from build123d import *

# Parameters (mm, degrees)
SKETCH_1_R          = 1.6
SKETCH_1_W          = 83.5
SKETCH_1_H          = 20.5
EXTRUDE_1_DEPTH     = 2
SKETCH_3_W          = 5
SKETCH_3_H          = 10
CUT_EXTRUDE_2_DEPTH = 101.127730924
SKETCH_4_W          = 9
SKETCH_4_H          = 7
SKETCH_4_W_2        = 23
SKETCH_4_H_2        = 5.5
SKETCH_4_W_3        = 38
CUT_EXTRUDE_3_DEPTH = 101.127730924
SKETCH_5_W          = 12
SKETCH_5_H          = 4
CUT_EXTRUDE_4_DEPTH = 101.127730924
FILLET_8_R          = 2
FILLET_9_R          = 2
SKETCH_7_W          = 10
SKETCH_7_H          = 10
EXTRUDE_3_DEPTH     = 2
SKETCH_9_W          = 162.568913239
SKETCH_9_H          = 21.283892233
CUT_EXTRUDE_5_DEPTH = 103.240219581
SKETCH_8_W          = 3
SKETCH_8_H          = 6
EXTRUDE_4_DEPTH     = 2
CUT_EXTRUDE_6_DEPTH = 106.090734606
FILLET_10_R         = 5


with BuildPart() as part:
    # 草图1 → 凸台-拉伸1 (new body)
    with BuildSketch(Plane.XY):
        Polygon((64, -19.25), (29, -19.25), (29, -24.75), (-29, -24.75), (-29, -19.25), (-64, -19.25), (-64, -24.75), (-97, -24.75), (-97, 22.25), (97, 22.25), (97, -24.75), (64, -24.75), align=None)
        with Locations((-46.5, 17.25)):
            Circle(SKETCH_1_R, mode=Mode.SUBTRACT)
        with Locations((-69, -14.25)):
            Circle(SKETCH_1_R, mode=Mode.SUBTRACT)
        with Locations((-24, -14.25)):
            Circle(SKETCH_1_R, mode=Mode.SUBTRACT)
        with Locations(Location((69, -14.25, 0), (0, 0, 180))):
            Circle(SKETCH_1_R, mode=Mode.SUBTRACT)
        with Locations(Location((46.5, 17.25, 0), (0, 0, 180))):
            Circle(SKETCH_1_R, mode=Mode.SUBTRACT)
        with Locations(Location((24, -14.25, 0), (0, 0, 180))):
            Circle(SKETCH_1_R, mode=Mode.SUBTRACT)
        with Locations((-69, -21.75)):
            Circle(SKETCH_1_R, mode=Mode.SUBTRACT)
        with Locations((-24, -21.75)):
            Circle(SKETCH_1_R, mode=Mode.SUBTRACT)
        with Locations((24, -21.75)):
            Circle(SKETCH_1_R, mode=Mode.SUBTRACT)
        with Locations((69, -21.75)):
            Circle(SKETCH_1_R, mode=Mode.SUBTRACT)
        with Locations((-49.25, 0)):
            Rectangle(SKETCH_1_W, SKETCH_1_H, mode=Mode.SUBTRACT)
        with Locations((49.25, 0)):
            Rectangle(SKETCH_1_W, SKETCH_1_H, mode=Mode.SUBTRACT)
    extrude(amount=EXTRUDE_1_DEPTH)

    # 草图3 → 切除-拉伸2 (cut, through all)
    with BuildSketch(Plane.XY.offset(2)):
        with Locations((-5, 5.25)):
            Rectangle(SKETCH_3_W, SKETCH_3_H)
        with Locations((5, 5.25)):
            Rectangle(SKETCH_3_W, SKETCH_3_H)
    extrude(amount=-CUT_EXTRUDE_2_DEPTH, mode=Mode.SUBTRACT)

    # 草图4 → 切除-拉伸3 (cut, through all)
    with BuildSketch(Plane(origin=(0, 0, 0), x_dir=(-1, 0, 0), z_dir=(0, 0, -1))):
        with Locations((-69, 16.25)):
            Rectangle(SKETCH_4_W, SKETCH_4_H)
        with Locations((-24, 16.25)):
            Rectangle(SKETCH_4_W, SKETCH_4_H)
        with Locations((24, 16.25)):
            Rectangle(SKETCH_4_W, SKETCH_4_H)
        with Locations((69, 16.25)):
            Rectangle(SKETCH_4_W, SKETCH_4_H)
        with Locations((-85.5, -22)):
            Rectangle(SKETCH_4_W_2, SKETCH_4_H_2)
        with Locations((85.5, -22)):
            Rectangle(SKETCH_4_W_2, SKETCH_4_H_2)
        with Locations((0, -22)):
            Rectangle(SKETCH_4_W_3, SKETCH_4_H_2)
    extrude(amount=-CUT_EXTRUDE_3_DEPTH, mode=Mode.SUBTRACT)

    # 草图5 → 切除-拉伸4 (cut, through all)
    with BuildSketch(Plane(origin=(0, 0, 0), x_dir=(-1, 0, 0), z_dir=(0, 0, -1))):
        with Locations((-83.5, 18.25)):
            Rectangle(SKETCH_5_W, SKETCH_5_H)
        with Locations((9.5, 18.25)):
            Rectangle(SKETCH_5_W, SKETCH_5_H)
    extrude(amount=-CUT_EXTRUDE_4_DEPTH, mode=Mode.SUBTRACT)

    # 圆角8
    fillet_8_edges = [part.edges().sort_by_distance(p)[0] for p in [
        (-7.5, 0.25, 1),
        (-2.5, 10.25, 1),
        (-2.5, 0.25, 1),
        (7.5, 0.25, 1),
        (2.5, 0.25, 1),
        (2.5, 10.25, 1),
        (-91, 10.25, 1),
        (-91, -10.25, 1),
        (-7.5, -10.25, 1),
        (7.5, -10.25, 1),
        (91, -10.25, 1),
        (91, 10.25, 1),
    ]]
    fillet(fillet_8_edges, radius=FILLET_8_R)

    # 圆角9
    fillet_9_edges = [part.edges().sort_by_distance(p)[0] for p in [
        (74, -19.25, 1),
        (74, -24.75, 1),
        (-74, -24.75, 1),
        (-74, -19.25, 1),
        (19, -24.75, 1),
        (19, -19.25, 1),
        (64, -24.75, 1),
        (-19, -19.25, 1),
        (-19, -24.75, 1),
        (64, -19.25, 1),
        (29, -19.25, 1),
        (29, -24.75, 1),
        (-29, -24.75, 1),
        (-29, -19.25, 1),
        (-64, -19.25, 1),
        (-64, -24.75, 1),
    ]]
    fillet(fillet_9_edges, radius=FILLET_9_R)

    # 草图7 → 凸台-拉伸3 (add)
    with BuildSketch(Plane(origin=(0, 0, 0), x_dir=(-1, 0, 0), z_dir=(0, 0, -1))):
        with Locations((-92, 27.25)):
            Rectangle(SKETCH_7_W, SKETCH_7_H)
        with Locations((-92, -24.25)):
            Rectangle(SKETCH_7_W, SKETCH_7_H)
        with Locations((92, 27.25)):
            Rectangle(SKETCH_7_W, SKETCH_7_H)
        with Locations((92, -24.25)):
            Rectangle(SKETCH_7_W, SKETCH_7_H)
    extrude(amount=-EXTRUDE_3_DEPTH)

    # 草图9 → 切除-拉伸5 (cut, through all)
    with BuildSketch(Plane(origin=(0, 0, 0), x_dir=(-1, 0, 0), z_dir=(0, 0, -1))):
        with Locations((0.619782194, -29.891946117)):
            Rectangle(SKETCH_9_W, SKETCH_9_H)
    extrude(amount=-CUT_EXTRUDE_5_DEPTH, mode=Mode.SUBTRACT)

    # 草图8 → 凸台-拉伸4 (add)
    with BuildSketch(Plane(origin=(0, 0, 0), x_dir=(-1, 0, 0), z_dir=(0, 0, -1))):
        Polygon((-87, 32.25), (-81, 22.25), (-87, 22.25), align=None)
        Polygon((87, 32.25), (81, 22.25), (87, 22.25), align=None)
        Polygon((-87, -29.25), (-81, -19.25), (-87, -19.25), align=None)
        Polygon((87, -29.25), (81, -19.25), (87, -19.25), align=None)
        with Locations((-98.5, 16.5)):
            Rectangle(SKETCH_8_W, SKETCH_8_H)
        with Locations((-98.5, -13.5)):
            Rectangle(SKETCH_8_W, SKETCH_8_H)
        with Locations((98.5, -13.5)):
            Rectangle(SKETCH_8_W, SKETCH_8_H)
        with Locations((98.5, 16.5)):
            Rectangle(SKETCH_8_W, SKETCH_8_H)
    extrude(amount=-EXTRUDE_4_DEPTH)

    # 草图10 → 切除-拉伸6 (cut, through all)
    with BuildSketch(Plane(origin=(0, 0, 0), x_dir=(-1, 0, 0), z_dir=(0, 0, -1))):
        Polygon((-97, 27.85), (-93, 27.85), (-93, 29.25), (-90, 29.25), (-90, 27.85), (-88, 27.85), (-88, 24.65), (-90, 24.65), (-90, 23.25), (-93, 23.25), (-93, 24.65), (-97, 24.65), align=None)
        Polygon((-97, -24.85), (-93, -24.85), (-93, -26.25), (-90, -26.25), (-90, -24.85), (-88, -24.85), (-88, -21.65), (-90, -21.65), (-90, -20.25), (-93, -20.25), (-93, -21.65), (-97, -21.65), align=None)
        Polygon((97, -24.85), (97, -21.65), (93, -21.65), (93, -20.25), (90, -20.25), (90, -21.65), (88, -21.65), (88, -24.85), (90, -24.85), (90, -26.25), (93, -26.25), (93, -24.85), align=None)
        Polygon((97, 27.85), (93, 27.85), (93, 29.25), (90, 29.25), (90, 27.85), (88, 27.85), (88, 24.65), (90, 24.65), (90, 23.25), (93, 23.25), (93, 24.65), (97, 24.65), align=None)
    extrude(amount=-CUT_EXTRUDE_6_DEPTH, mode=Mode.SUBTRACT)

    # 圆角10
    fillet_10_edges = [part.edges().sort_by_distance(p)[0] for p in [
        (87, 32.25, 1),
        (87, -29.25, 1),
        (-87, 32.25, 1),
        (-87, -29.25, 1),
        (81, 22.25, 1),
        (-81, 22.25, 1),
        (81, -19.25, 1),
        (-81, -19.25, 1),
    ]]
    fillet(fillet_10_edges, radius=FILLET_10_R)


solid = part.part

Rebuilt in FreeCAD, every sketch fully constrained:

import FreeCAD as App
import Part
import Sketcher


def edges_at(feature, points):
    """Names of the edges that pass closest to the given points."""
    edges = feature.Shape.Edges
    near = lambda p: min(range(len(edges)), key=lambda i: edges[i].distToShape(Part.Vertex(*p))[0])
    return sorted({f"Edge{near(p) + 1}" for p in points})

doc = App.newDocument("Part")
body = doc.addObject("PartDesign::Body", "Body")

sketch1 = doc.addObject("Sketcher::SketchObject", "Sketch")
body.addObject(sketch1)
sketch1.AttachmentSupport = (doc.XY_Plane, [""])
sketch1.MapMode = "FlatFace"
sketch1.addGeometry([
    Part.LineSegment(App.Vector(29, -19.2, 0), App.Vector(64, -19.2, 0)),
    Part.LineSegment(App.Vector(64, -19.2, 0), App.Vector(64, -24.8, 0)),
    Part.LineSegment(App.Vector(64, -24.8, 0), App.Vector(97, -24.8, 0)),
    Part.LineSegment(App.Vector(97, -24.8, 0), App.Vector(97, 22.2, 0)),
    Part.LineSegment(App.Vector(97, 22.2, 0), App.Vector(-97, 22.2, 0)),
    Part.LineSegment(App.Vector(-97, 22.2, 0), App.Vector(-97, -24.8, 0)),
    Part.LineSegment(App.Vector(-97, -24.8, 0), App.Vector(-64, -24.8, 0)),
    Part.LineSegment(App.Vector(-64, -24.8, 0), App.Vector(-64, -19.2, 0)),
    Part.LineSegment(App.Vector(-64, -19.2, 0), App.Vector(-29, -19.2, 0)),
    Part.LineSegment(App.Vector(-29, -19.2, 0), App.Vector(-29, -24.8, 0)),
    Part.LineSegment(App.Vector(-29, -24.8, 0), App.Vector(29, -24.8, 0)),
    Part.LineSegment(App.Vector(29, -24.8, 0), App.Vector(29, -19.2, 0)),
    Part.Circle(App.Vector(69, -21.8, 0), App.Vector(0, 0, 1), 1.6),
    Part.Circle(App.Vector(69, -14.2, 0), App.Vector(0, 0, 1), 1.6),
    Part.Circle(App.Vector(24, -21.8, 0), App.Vector(0, 0, 1), 1.6),
    Part.Circle(App.Vector(24, -14.2, 0), App.Vector(0, 0, 1), 1.6),
    Part.Circle(App.Vector(-24, -21.8, 0), App.Vector(0, 0, 1), 1.6),
    Part.Circle(App.Vector(-24, -14.2, 0), App.Vector(0, 0, 1), 1.6),
    Part.Circle(App.Vector(-69, -21.8, 0), App.Vector(0, 0, 1), 1.6),
    Part.Circle(App.Vector(-69, -14.2, 0), App.Vector(0, 0, 1), 1.6),
    Part.LineSegment(App.Vector(7.5, -10.2, 0), App.Vector(7.5, 10.2, 0)),
    Part.LineSegment(App.Vector(7.5, 10.2, 0), App.Vector(91, 10.2, 0)),
    Part.LineSegment(App.Vector(91, 10.2, 0), App.Vector(91, -10.2, 0)),
    Part.LineSegment(App.Vector(91, -10.2, 0), App.Vector(7.5, -10.2, 0)),
    Part.Circle(App.Vector(46.5, 17.2, 0), App.Vector(0, 0, 1), 1.6),
    Part.LineSegment(App.Vector(-91, -10.2, 0), App.Vector(-91, 10.2, 0)),
    Part.LineSegment(App.Vector(-91, 10.2, 0), App.Vector(-7.5, 10.2, 0)),
    Part.LineSegment(App.Vector(-7.5, 10.2, 0), App.Vector(-7.5, -10.2, 0)),
    Part.LineSegment(App.Vector(-7.5, -10.2, 0), App.Vector(-91, -10.2, 0)),
    Part.Circle(App.Vector(-46.5, 17.2, 0), App.Vector(0, 0, 1), 1.6),
], False)
sketch1.addConstraint([
    Sketcher.Constraint("Coincident", 0, 2, 1, 1),
    Sketcher.Constraint("Coincident", 1, 2, 2, 1),
    Sketcher.Constraint("Coincident", 2, 2, 3, 1),
    Sketcher.Constraint("Coincident", 3, 2, 4, 1),
    Sketcher.Constraint("Coincident", 4, 2, 5, 1),
    Sketcher.Constraint("Coincident", 5, 2, 6, 1),
    Sketcher.Constraint("Coincident", 6, 2, 7, 1),
    Sketcher.Constraint("Coincident", 7, 2, 8, 1),
    Sketcher.Constraint("Coincident", 8, 2, 9, 1),
    Sketcher.Constraint("Coincident", 9, 2, 10, 1),
    Sketcher.Constraint("Coincident", 10, 2, 11, 1),
    Sketcher.Constraint("Coincident", 11, 2, 0, 1),
    Sketcher.Constraint("Coincident", 20, 2, 21, 1),
    Sketcher.Constraint("Coincident", 21, 2, 22, 1),
    Sketcher.Constraint("Coincident", 22, 2, 23, 1),
    Sketcher.Constraint("Coincident", 23, 2, 20, 1),
    Sketcher.Constraint("Coincident", 25, 2, 26, 1),
    Sketcher.Constraint("Coincident", 26, 2, 27, 1),
    Sketcher.Constraint("Coincident", 27, 2, 28, 1),
    Sketcher.Constraint("Coincident", 28, 2, 25, 1),
    Sketcher.Constraint("Horizontal", 0),
    Sketcher.Constraint("Vertical", 1),
    Sketcher.Constraint("Horizontal", 2),
    Sketcher.Constraint("Vertical", 3),
    Sketcher.Constraint("Horizontal", 4),
    Sketcher.Constraint("Vertical", 5),
    Sketcher.Constraint("Horizontal", 6),
    Sketcher.Constraint("Vertical", 7),
    Sketcher.Constraint("Horizontal", 8),
    Sketcher.Constraint("Vertical", 9),
    Sketcher.Constraint("Horizontal", 10),
    Sketcher.Constraint("Vertical", 11),
    Sketcher.Constraint("Vertical", 20),
    Sketcher.Constraint("Horizontal", 21),
    Sketcher.Constraint("Vertical", 22),
    Sketcher.Constraint("Horizontal", 23),
    Sketcher.Constraint("Vertical", 25),
    Sketcher.Constraint("Horizontal", 26),
    Sketcher.Constraint("Vertical", 27),
    Sketcher.Constraint("Horizontal", 28),
    Sketcher.Constraint("Equal", 12, 13),
    Sketcher.Constraint("Equal", 13, 14),
    Sketcher.Constraint("Equal", 14, 15),
    Sketcher.Constraint("Equal", 15, 16),
    Sketcher.Constraint("Equal", 16, 17),
    Sketcher.Constraint("Equal", 17, 18),
    Sketcher.Constraint("Equal", 18, 19),
    Sketcher.Constraint("Equal", 19, 24),
    Sketcher.Constraint("Equal", 24, 29),
    Sketcher.Constraint("Symmetric", 22, 2, 25, 2, -1, 1),
    Sketcher.Constraint("Symmetric", 20, 2, 27, 2, -1, 1),
    Sketcher.Constraint("Symmetric", 14, 3, 16, 3, -2),
    Sketcher.Constraint("Symmetric", 15, 3, 17, 3, -2),
    Sketcher.Constraint("Symmetric", 12, 3, 18, 3, -2),
    Sketcher.Constraint("Symmetric", 13, 3, 19, 3, -2),
    Sketcher.Constraint("Symmetric", 24, 3, 29, 3, -2),
    Sketcher.Constraint("Symmetric", 2, 2, 5, 2, -2),
    Sketcher.Constraint("Symmetric", 0, 2, 7, 2, -2),
    Sketcher.Constraint("Horizontal", 12, 3, 14, 3),
    Sketcher.Constraint("Horizontal", 13, 3, 15, 3),
    Sketcher.Constraint("Horizontal", 6, 2, 9, 2),
    Sketcher.Constraint("Horizontal", 21, 2, 25, 2),
    Sketcher.Constraint("Vertical", 12, 3, 13, 3),
    Sketcher.Constraint("Vertical", 14, 3, 15, 3),
    Sketcher.Constraint("Equal", 0, 8),
    Sketcher.Constraint("Diameter", 12, 3.2),
    Sketcher.Constraint("DistanceX", 0, 1, 0, 2, 35.0),
    Sketcher.Constraint("DistanceX", 2, 1, 2, 2, 33.0),
    Sketcher.Constraint("DistanceX", 4, 2, 4, 1, 194.0),
    Sketcher.Constraint("DistanceY", 3, 1, 3, 2, 47.0),
    Sketcher.Constraint("DistanceX", 21, 1, 21, 2, 83.5),
    Sketcher.Constraint("DistanceY", 1, 2, 1, 1, 5.5),
    Sketcher.Constraint("DistanceY", 20, 1, 20, 2, 20.5),
    Sketcher.Constraint("DistanceX", -1, 1, 12, 3, 69.0),
    Sketcher.Constraint("DistanceX", -1, 1, 14, 3, 24.0),
    Sketcher.Constraint("DistanceX", -1, 1, 21, 2, 91.0),
    Sketcher.Constraint("DistanceY", 12, 3, 24, 3, 39.0),
    Sketcher.Constraint("DistanceY", 0, 2, 13, 3, 5.0),
    Sketcher.Constraint("DistanceY", 1, 2, 12, 3, 3.0),
    Sketcher.Constraint("DistanceY", 14, 3, 20, 2, 32.0),
    Sketcher.Constraint("DistanceX", 20, 2, 24, 3, 39.0),
])
pad1 = doc.addObject("PartDesign::Pad", "Pad")
body.addObject(pad1)
pad1.Profile = sketch1
pad1.Length = 2

sketch2 = doc.addObject("Sketcher::SketchObject", "Sketch001")
body.addObject(sketch2)
sketch2.AttachmentSupport = (doc.XY_Plane, [""])
sketch2.MapMode = "FlatFace"
sketch2.AttachmentOffset = App.Placement(App.Vector(0, 0, 2), App.Rotation())
sketch2.addGeometry([
    Part.LineSegment(App.Vector(-8, 10, 0), App.Vector(-8, 0, 0)),
    Part.LineSegment(App.Vector(-8, 0, 0), App.Vector(-2, 0, 0)),
    Part.LineSegment(App.Vector(-2, 0, 0), App.Vector(-2, 10, 0)),
    Part.LineSegment(App.Vector(-2, 10, 0), App.Vector(-8, 10, 0)),
    Part.LineSegment(App.Vector(2, 10, 0), App.Vector(2, 0, 0)),
    Part.LineSegment(App.Vector(2, 0, 0), App.Vector(8, 0, 0)),
    Part.LineSegment(App.Vector(8, 0, 0), App.Vector(8, 10, 0)),
    Part.LineSegment(App.Vector(8, 10, 0), App.Vector(2, 10, 0)),
], False)
sketch2.addConstraint([
    Sketcher.Constraint("Coincident", 0, 2, 1, 1),
    Sketcher.Constraint("Coincident", 1, 2, 2, 1),
    Sketcher.Constraint("Coincident", 2, 2, 3, 1),
    Sketcher.Constraint("Coincident", 3, 2, 0, 1),
    Sketcher.Constraint("Coincident", 4, 2, 5, 1),
    Sketcher.Constraint("Coincident", 5, 2, 6, 1),
    Sketcher.Constraint("Coincident", 6, 2, 7, 1),
    Sketcher.Constraint("Coincident", 7, 2, 4, 1),
    Sketcher.Constraint("Vertical", 0),
    Sketcher.Constraint("Horizontal", 1),
    Sketcher.Constraint("Vertical", 2),
    Sketcher.Constraint("Horizontal", 3),
    Sketcher.Constraint("Vertical", 4),
    Sketcher.Constraint("Horizontal", 5),
    Sketcher.Constraint("Vertical", 6),
    Sketcher.Constraint("Horizontal", 7),
    Sketcher.Constraint("Symmetric", 1, 2, 4, 2, -2),
    Sketcher.Constraint("Symmetric", 3, 2, 6, 2, -2),
    Sketcher.Constraint("DistanceX", 1, 1, 1, 2, 5.0),
    Sketcher.Constraint("DistanceY", 0, 2, 0, 1, 10.0),
    Sketcher.Constraint("DistanceX", 1, 2, 4, 2, 5.0),
    Sketcher.Constraint("DistanceY", -1, 1, 0, 2, 0.25),
])
pocket1 = doc.addObject("PartDesign::Pocket", "Pocket")
body.addObject(pocket1)
pocket1.Profile = sketch2
pocket1.Type = "ThroughAll"

sketch3 = doc.addObject("Sketcher::SketchObject", "Sketch002")
body.addObject(sketch3)
sketch3.AttachmentSupport = (doc.XY_Plane, [""])
sketch3.MapMode = "FlatFace"
sketch3.addGeometry([
    Part.LineSegment(App.Vector(74, 20, 0), App.Vector(74, 13, 0)),
    Part.LineSegment(App.Vector(74, 13, 0), App.Vector(64, 13, 0)),
    Part.LineSegment(App.Vector(64, 13, 0), App.Vector(64, 20, 0)),
    Part.LineSegment(App.Vector(64, 20, 0), App.Vector(74, 20, 0)),
    Part.LineSegment(App.Vector(28, 20, 0), App.Vector(28, 13, 0)),
    Part.LineSegment(App.Vector(28, 13, 0), App.Vector(20, 13, 0)),
    Part.LineSegment(App.Vector(20, 13, 0), App.Vector(20, 20, 0)),
    Part.LineSegment(App.Vector(20, 20, 0), App.Vector(28, 20, 0)),
    Part.LineSegment(App.Vector(-20, 20, 0), App.Vector(-20, 13, 0)),
    Part.LineSegment(App.Vector(-20, 13, 0), App.Vector(-28, 13, 0)),
    Part.LineSegment(App.Vector(-28, 13, 0), App.Vector(-28, 20, 0)),
    Part.LineSegment(App.Vector(-28, 20, 0), App.Vector(-20, 20, 0)),
    Part.LineSegment(App.Vector(-64, 20, 0), App.Vector(-64, 13, 0)),
    Part.LineSegment(App.Vector(-64, 13, 0), App.Vector(-74, 13, 0)),
    Part.LineSegment(App.Vector(-74, 13, 0), App.Vector(-74, 20, 0)),
    Part.LineSegment(App.Vector(-74, 20, 0), App.Vector(-64, 20, 0)),
    Part.LineSegment(App.Vector(97, -19, 0), App.Vector(97, -25, 0)),
    Part.LineSegment(App.Vector(97, -25, 0), App.Vector(74, -25, 0)),
    Part.LineSegment(App.Vector(74, -25, 0), App.Vector(74, -19, 0)),
    Part.LineSegment(App.Vector(74, -19, 0), App.Vector(97, -19, 0)),
    Part.LineSegment(App.Vector(-74, -19, 0), App.Vector(-74, -25, 0)),
    Part.LineSegment(App.Vector(-74, -25, 0), App.Vector(-97, -25, 0)),
    Part.LineSegment(App.Vector(-97, -25, 0), App.Vector(-97, -19, 0)),
    Part.LineSegment(App.Vector(-97, -19, 0), App.Vector(-74, -19, 0)),
    Part.LineSegment(App.Vector(19, -19, 0), App.Vector(19, -25, 0)),
    Part.LineSegment(App.Vector(19, -25, 0), App.Vector(-19, -25, 0)),
    Part.LineSegment(App.Vector(-19, -25, 0), App.Vector(-19, -19, 0)),
    Part.LineSegment(App.Vector(-19, -19, 0), App.Vector(19, -19, 0)),
], False)
sketch3.addConstraint([
    Sketcher.Constraint("Coincident", 0, 2, 1, 1),
    Sketcher.Constraint("Coincident", 1, 2, 2, 1),
    Sketcher.Constraint("Coincident", 2, 2, 3, 1),
    Sketcher.Constraint("Coincident", 3, 2, 0, 1),
    Sketcher.Constraint("Coincident", 4, 2, 5, 1),
    Sketcher.Constraint("Coincident", 5, 2, 6, 1),
    Sketcher.Constraint("Coincident", 6, 2, 7, 1),
    Sketcher.Constraint("Coincident", 7, 2, 4, 1),
    Sketcher.Constraint("Coincident", 8, 2, 9, 1),
    Sketcher.Constraint("Coincident", 9, 2, 10, 1),
    Sketcher.Constraint("Coincident", 10, 2, 11, 1),
    Sketcher.Constraint("Coincident", 11, 2, 8, 1),
    Sketcher.Constraint("Coincident", 12, 2, 13, 1),
    Sketcher.Constraint("Coincident", 13, 2, 14, 1),
    Sketcher.Constraint("Coincident", 14, 2, 15, 1),
    Sketcher.Constraint("Coincident", 15, 2, 12, 1),
    Sketcher.Constraint("Coincident", 16, 2, 17, 1),
    Sketcher.Constraint("Coincident", 17, 2, 18, 1),
    Sketcher.Constraint("Coincident", 18, 2, 19, 1),
    Sketcher.Constraint("Coincident", 19, 2, 16, 1),
    Sketcher.Constraint("Coincident", 20, 2, 21, 1),
    Sketcher.Constraint("Coincident", 21, 2, 22, 1),
    Sketcher.Constraint("Coincident", 22, 2, 23, 1),
    Sketcher.Constraint("Coincident", 23, 2, 20, 1),
    Sketcher.Constraint("Coincident", 24, 2, 25, 1),
    Sketcher.Constraint("Coincident", 25, 2, 26, 1),
    Sketcher.Constraint("Coincident", 26, 2, 27, 1),
    Sketcher.Constraint("Coincident", 27, 2, 24, 1),
    Sketcher.Constraint("Vertical", 0),
    Sketcher.Constraint("Horizontal", 1),
    Sketcher.Constraint("Vertical", 2),
    Sketcher.Constraint("Horizontal", 3),
    Sketcher.Constraint("Vertical", 4),
    Sketcher.Constraint("Horizontal", 5),
    Sketcher.Constraint("Vertical", 6),
    Sketcher.Constraint("Horizontal", 7),
    Sketcher.Constraint("Vertical", 8),
    Sketcher.Constraint("Horizontal", 9),
    Sketcher.Constraint("Vertical", 10),
    Sketcher.Constraint("Horizontal", 11),
    Sketcher.Constraint("Vertical", 12),
    Sketcher.Constraint("Horizontal", 13),
    Sketcher.Constraint("Vertical", 14),
    Sketcher.Constraint("Horizontal", 15),
    Sketcher.Constraint("Vertical", 16),
    Sketcher.Constraint("Horizontal", 17),
    Sketcher.Constraint("Vertical", 18),
    Sketcher.Constraint("Horizontal", 19),
    Sketcher.Constraint("Vertical", 20),
    Sketcher.Constraint("Horizontal", 21),
    Sketcher.Constraint("Vertical", 22),
    Sketcher.Constraint("Horizontal", 23),
    Sketcher.Constraint("Vertical", 24),
    Sketcher.Constraint("Horizontal", 25),
    Sketcher.Constraint("Vertical", 26),
    Sketcher.Constraint("Horizontal", 27),
    Sketcher.Constraint("Symmetric", 5, 2, 8, 2, -2),
    Sketcher.Constraint("Symmetric", 7, 2, 10, 2, -2),
    Sketcher.Constraint("Symmetric", 1, 2, 12, 2, -2),
    Sketcher.Constraint("Symmetric", 3, 2, 14, 2, -2),
    Sketcher.Constraint("Symmetric", 17, 2, 20, 2, -2),
    Sketcher.Constraint("Symmetric", 19, 2, 22, 2, -2),
    Sketcher.Constraint("Horizontal", 1, 2, 4, 2),
    Sketcher.Constraint("Horizontal", 3, 2, 6, 2),
    Sketcher.Constraint("Horizontal", 21, 2, 24, 2),
    Sketcher.Constraint("Horizontal", 23, 2, 26, 2),
    Sketcher.Constraint("Equal", 3, 5),
    Sketcher.Constraint("DistanceX", 1, 2, 1, 1, 9.0),
    Sketcher.Constraint("DistanceX", 17, 2, 17, 1, 23.0),
    Sketcher.Constraint("DistanceX", 25, 2, 25, 1, 38.0),
    Sketcher.Constraint("DistanceY", 0, 2, 0, 1, 7.0),
    Sketcher.Constraint("DistanceY", 16, 2, 16, 1, 5.5),
    Sketcher.Constraint("DistanceX", -1, 1, 16, 2, 97.0),
    Sketcher.Constraint("DistanceX", -1, 1, 24, 2, 19.0),
    Sketcher.Constraint("DistanceX", 4, 2, 1, 2, 36.0),
    Sketcher.Constraint("DistanceX", 8, 2, 5, 2, 39.0),
    Sketcher.Constraint("DistanceY", 18, 2, 0, 2, 32.0),
    Sketcher.Constraint("DistanceY", -1, 1, 0, 2, 12.75),
])
pocket2 = doc.addObject("PartDesign::Pocket", "Pocket001")
body.addObject(pocket2)
pocket2.Profile = sketch3
pocket2.Type = "ThroughAll"
pocket2.Reversed = True

sketch4 = doc.addObject("Sketcher::SketchObject", "Sketch003")
body.addObject(sketch4)
sketch4.AttachmentSupport = (doc.XY_Plane, [""])
sketch4.MapMode = "FlatFace"
sketch4.addGeometry([
    Part.LineSegment(App.Vector(89.5, 20.2, 0), App.Vector(89.5, 16.2, 0)),
    Part.LineSegment(App.Vector(89.5, 16.2, 0), App.Vector(77.5, 16.2, 0)),
    Part.LineSegment(App.Vector(77.5, 16.2, 0), App.Vector(77.5, 20.2, 0)),
    Part.LineSegment(App.Vector(77.5, 20.2, 0), App.Vector(89.5, 20.2, 0)),
    Part.LineSegment(App.Vector(-3.5, 20.2, 0), App.Vector(-3.5, 16.2, 0)),
    Part.LineSegment(App.Vector(-3.5, 16.2, 0), App.Vector(-15.5, 16.2, 0)),
    Part.LineSegment(App.Vector(-15.5, 16.2, 0), App.Vector(-15.5, 20.2, 0)),
    Part.LineSegment(App.Vector(-15.5, 20.2, 0), App.Vector(-3.5, 20.2, 0)),
], False)
sketch4.addConstraint([
    Sketcher.Constraint("Coincident", 0, 2, 1, 1),
    Sketcher.Constraint("Coincident", 1, 2, 2, 1),
    Sketcher.Constraint("Coincident", 2, 2, 3, 1),
    Sketcher.Constraint("Coincident", 3, 2, 0, 1),
    Sketcher.Constraint("Coincident", 4, 2, 5, 1),
    Sketcher.Constraint("Coincident", 5, 2, 6, 1),
    Sketcher.Constraint("Coincident", 6, 2, 7, 1),
    Sketcher.Constraint("Coincident", 7, 2, 4, 1),
    Sketcher.Constraint("Vertical", 0),
    Sketcher.Constraint("Horizontal", 1),
    Sketcher.Constraint("Vertical", 2),
    Sketcher.Constraint("Horizontal", 3),
    Sketcher.Constraint("Vertical", 4),
    Sketcher.Constraint("Horizontal", 5),
    Sketcher.Constraint("Vertical", 6),
    Sketcher.Constraint("Horizontal", 7),
    Sketcher.Constraint("Horizontal", 1, 2, 4, 2),
    Sketcher.Constraint("Horizontal", 3, 2, 6, 2),
    Sketcher.Constraint("Equal", 3, 5),
    Sketcher.Constraint("DistanceX", 1, 2, 1, 1, 12.0),
    Sketcher.Constraint("DistanceY", 0, 2, 0, 1, 4.0),
    Sketcher.Constraint("DistanceX", 4, 2, 1, 2, 81.0),
    Sketcher.Constraint("DistanceX", -1, 1, 0, 2, 89.5),
    Sketcher.Constraint("DistanceY", -1, 1, 0, 2, 16.25),
])
pocket3 = doc.addObject("PartDesign::Pocket", "Pocket002")
body.addObject(pocket3)
pocket3.Profile = sketch4
pocket3.Type = "ThroughAll"
pocket3.Reversed = True
doc.recompute()

fillet = doc.addObject("PartDesign::Fillet", "Fillet")
body.addObject(fillet)
fillet.Base = (pocket3, edges_at(pocket3, [
    (-7.5, 0.25, 1),
    (-2.5, 10.25, 1),
    (-2.5, 0.25, 1),
    (7.5, 0.25, 1),
    (2.5, 0.25, 1),
    (2.5, 10.25, 1),
    (-91, 10.25, 1),
    (-91, -10.25, 1),
    (-7.5, -10.25, 1),
    (7.5, -10.25, 1),
    (91, -10.25, 1),
    (91, 10.25, 1),
]))
fillet.Radius = 2
doc.recompute()

fillet2 = doc.addObject("PartDesign::Fillet", "Fillet001")
body.addObject(fillet2)
fillet2.Base = (fillet, edges_at(fillet, [
    (74, -19.25, 1),
    (74, -24.75, 1),
    (-74, -24.75, 1),
    (-74, -19.25, 1),
    (19, -24.75, 1),
    (19, -19.25, 1),
    (64, -24.75, 1),
    (-19, -19.25, 1),
    (-19, -24.75, 1),
    (64, -19.25, 1),
    (29, -19.25, 1),
    (29, -24.75, 1),
    (-29, -24.75, 1),
    (-29, -19.25, 1),
    (-64, -19.25, 1),
    (-64, -24.75, 1),
]))
fillet2.Radius = 2

sketch5 = doc.addObject("Sketcher::SketchObject", "Sketch004")
body.addObject(sketch5)
sketch5.AttachmentSupport = (doc.XY_Plane, [""])
sketch5.MapMode = "FlatFace"
sketch5.addGeometry([
    Part.LineSegment(App.Vector(97, 32, 0), App.Vector(97, 22, 0)),
    Part.LineSegment(App.Vector(97, 22, 0), App.Vector(87, 22, 0)),
    Part.LineSegment(App.Vector(87, 22, 0), App.Vector(87, 32, 0)),
    Part.LineSegment(App.Vector(87, 32, 0), App.Vector(97, 32, 0)),
    Part.LineSegment(App.Vector(97, -19, 0), App.Vector(97, -29, 0)),
    Part.LineSegment(App.Vector(97, -29, 0), App.Vector(87, -29, 0)),
    Part.LineSegment(App.Vector(87, -29, 0), App.Vector(87, -19, 0)),
    Part.LineSegment(App.Vector(87, -19, 0), App.Vector(97, -19, 0)),
    Part.LineSegment(App.Vector(-87, 32, 0), App.Vector(-87, 22, 0)),
    Part.LineSegment(App.Vector(-87, 22, 0), App.Vector(-97, 22, 0)),
    Part.LineSegment(App.Vector(-97, 22, 0), App.Vector(-97, 32, 0)),
    Part.LineSegment(App.Vector(-97, 32, 0), App.Vector(-87, 32, 0)),
    Part.LineSegment(App.Vector(-87, -19, 0), App.Vector(-87, -29, 0)),
    Part.LineSegment(App.Vector(-87, -29, 0), App.Vector(-97, -29, 0)),
    Part.LineSegment(App.Vector(-97, -29, 0), App.Vector(-97, -19, 0)),
    Part.LineSegment(App.Vector(-97, -19, 0), App.Vector(-87, -19, 0)),
], False)
sketch5.addConstraint([
    Sketcher.Constraint("Coincident", 0, 2, 1, 1),
    Sketcher.Constraint("Coincident", 1, 2, 2, 1),
    Sketcher.Constraint("Coincident", 2, 2, 3, 1),
    Sketcher.Constraint("Coincident", 3, 2, 0, 1),
    Sketcher.Constraint("Coincident", 4, 2, 5, 1),
    Sketcher.Constraint("Coincident", 5, 2, 6, 1),
    Sketcher.Constraint("Coincident", 6, 2, 7, 1),
    Sketcher.Constraint("Coincident", 7, 2, 4, 1),
    Sketcher.Constraint("Coincident", 8, 2, 9, 1),
    Sketcher.Constraint("Coincident", 9, 2, 10, 1),
    Sketcher.Constraint("Coincident", 10, 2, 11, 1),
    Sketcher.Constraint("Coincident", 11, 2, 8, 1),
    Sketcher.Constraint("Coincident", 12, 2, 13, 1),
    Sketcher.Constraint("Coincident", 13, 2, 14, 1),
    Sketcher.Constraint("Coincident", 14, 2, 15, 1),
    Sketcher.Constraint("Coincident", 15, 2, 12, 1),
    Sketcher.Constraint("Vertical", 0),
    Sketcher.Constraint("Horizontal", 1),
    Sketcher.Constraint("Vertical", 2),
    Sketcher.Constraint("Horizontal", 3),
    Sketcher.Constraint("Vertical", 4),
    Sketcher.Constraint("Horizontal", 5),
    Sketcher.Constraint("Vertical", 6),
    Sketcher.Constraint("Horizontal", 7),
    Sketcher.Constraint("Vertical", 8),
    Sketcher.Constraint("Horizontal", 9),
    Sketcher.Constraint("Vertical", 10),
    Sketcher.Constraint("Horizontal", 11),
    Sketcher.Constraint("Vertical", 12),
    Sketcher.Constraint("Horizontal", 13),
    Sketcher.Constraint("Vertical", 14),
    Sketcher.Constraint("Horizontal", 15),
    Sketcher.Constraint("Symmetric", 1, 2, 8, 2, -2),
    Sketcher.Constraint("Symmetric", 3, 2, 10, 2, -2),
    Sketcher.Constraint("Symmetric", 5, 2, 12, 2, -2),
    Sketcher.Constraint("Symmetric", 7, 2, 14, 2, -2),
    Sketcher.Constraint("Vertical", 3, 2, 4, 2),
    Sketcher.Constraint("Vertical", 2, 2, 5, 2),
    Sketcher.Constraint("Equal", 15, 0),
    Sketcher.Constraint("Equal", 2, 4),
    Sketcher.Constraint("DistanceX", 1, 2, 1, 1, 10.0),
    Sketcher.Constraint("DistanceX", -1, 1, 0, 2, 97.0),
    Sketcher.Constraint("DistanceY", 4, 2, 0, 2, 51.5),
    Sketcher.Constraint("DistanceY", -1, 1, 0, 2, 22.25),
])
pad2 = doc.addObject("PartDesign::Pad", "Pad001")
body.addObject(pad2)
pad2.Profile = sketch5
pad2.Length = 2

sketch6 = doc.addObject("Sketcher::SketchObject", "Sketch005")
body.addObject(sketch6)
sketch6.AttachmentSupport = (doc.XY_Plane, [""])
sketch6.MapMode = "FlatFace"
sketch6.addGeometry([
    Part.LineSegment(App.Vector(81, -19, 0), App.Vector(81, -41, 0)),
    Part.LineSegment(App.Vector(81, -41, 0), App.Vector(-82, -41, 0)),
    Part.LineSegment(App.Vector(-82, -41, 0), App.Vector(-82, -19, 0)),
    Part.LineSegment(App.Vector(-82, -19, 0), App.Vector(81, -19, 0)),
], False)
sketch6.addConstraint([
    Sketcher.Constraint("Coincident", 0, 2, 1, 1),
    Sketcher.Constraint("Coincident", 1, 2, 2, 1),
    Sketcher.Constraint("Coincident", 2, 2, 3, 1),
    Sketcher.Constraint("Coincident", 3, 2, 0, 1),
    Sketcher.Constraint("Vertical", 0),
    Sketcher.Constraint("Horizontal", 1),
    Sketcher.Constraint("Vertical", 2),
    Sketcher.Constraint("Horizontal", 3),
    Sketcher.Constraint("DistanceY", 2, 2, -1, 1, 19.25),
    Sketcher.Constraint("DistanceX", 1, 2, 1, 1, 162.568913),
    Sketcher.Constraint("DistanceY", 0, 2, 0, 1, 21.283892),
    Sketcher.Constraint("DistanceX", 1, 2, -1, 1, 81.904239),
])
pocket4 = doc.addObject("PartDesign::Pocket", "Pocket003")
body.addObject(pocket4)
pocket4.Profile = sketch6
pocket4.Type = "ThroughAll"
pocket4.Reversed = True

sketch7 = doc.addObject("Sketcher::SketchObject", "Sketch006")
body.addObject(sketch7)
sketch7.AttachmentSupport = (doc.XY_Plane, [""])
sketch7.MapMode = "FlatFace"
sketch7.addGeometry([
    Part.LineSegment(App.Vector(81, 22.2, 0), App.Vector(87, 32.2, 0)),
    Part.LineSegment(App.Vector(87, 32.2, 0), App.Vector(87, 22.2, 0)),
    Part.LineSegment(App.Vector(87, 22.2, 0), App.Vector(81, 22.2, 0)),
    Part.LineSegment(App.Vector(-87, 32.2, 0), App.Vector(-81, 22.2, 0)),
    Part.LineSegment(App.Vector(-81, 22.2, 0), App.Vector(-87, 22.2, 0)),
    Part.LineSegment(App.Vector(-87, 22.2, 0), App.Vector(-87, 32.2, 0)),
    Part.LineSegment(App.Vector(87, -29.2, 0), App.Vector(81, -19.2, 0)),
    Part.LineSegment(App.Vector(81, -19.2, 0), App.Vector(87, -19.2, 0)),
    Part.LineSegment(App.Vector(87, -19.2, 0), App.Vector(87, -29.2, 0)),
    Part.LineSegment(App.Vector(-81, -19.2, 0), App.Vector(-87, -29.2, 0)),
    Part.LineSegment(App.Vector(-87, -29.2, 0), App.Vector(-87, -19.2, 0)),
    Part.LineSegment(App.Vector(-87, -19.2, 0), App.Vector(-81, -19.2, 0)),
    Part.LineSegment(App.Vector(100, 19.5, 0), App.Vector(100, 13.5, 0)),
    Part.LineSegment(App.Vector(100, 13.5, 0), App.Vector(97, 13.5, 0)),
    Part.LineSegment(App.Vector(97, 13.5, 0), App.Vector(97, 19.5, 0)),
    Part.LineSegment(App.Vector(97, 19.5, 0), App.Vector(100, 19.5, 0)),
    Part.LineSegment(App.Vector(100, -10.5, 0), App.Vector(100, -16.5, 0)),
    Part.LineSegment(App.Vector(100, -16.5, 0), App.Vector(97, -16.5, 0)),
    Part.LineSegment(App.Vector(97, -16.5, 0), App.Vector(97, -10.5, 0)),
    Part.LineSegment(App.Vector(97, -10.5, 0), App.Vector(100, -10.5, 0)),
    Part.LineSegment(App.Vector(-97, -10.5, 0), App.Vector(-97, -16.5, 0)),
    Part.LineSegment(App.Vector(-97, -16.5, 0), App.Vector(-100, -16.5, 0)),
    Part.LineSegment(App.Vector(-100, -16.5, 0), App.Vector(-100, -10.5, 0)),
    Part.LineSegment(App.Vector(-100, -10.5, 0), App.Vector(-97, -10.5, 0)),
    Part.LineSegment(App.Vector(-97, 19.5, 0), App.Vector(-97, 13.5, 0)),
    Part.LineSegment(App.Vector(-97, 13.5, 0), App.Vector(-100, 13.5, 0)),
    Part.LineSegment(App.Vector(-100, 13.5, 0), App.Vector(-100, 19.5, 0)),
    Part.LineSegment(App.Vector(-100, 19.5, 0), App.Vector(-97, 19.5, 0)),
], False)
sketch7.addConstraint([
    Sketcher.Constraint("Coincident", 0, 2, 1, 1),
    Sketcher.Constraint("Coincident", 1, 2, 2, 1),
    Sketcher.Constraint("Coincident", 2, 2, 0, 1),
    Sketcher.Constraint("Coincident", 3, 2, 4, 1),
    Sketcher.Constraint("Coincident", 4, 2, 5, 1),
    Sketcher.Constraint("Coincident", 5, 2, 3, 1),
    Sketcher.Constraint("Coincident", 6, 2, 7, 1),
    Sketcher.Constraint("Coincident", 7, 2, 8, 1),
    Sketcher.Constraint("Coincident", 8, 2, 6, 1),
    Sketcher.Constraint("Coincident", 9, 2, 10, 1),
    Sketcher.Constraint("Coincident", 10, 2, 11, 1),
    Sketcher.Constraint("Coincident", 11, 2, 9, 1),
    Sketcher.Constraint("Coincident", 12, 2, 13, 1),
    Sketcher.Constraint("Coincident", 13, 2, 14, 1),
    Sketcher.Constraint("Coincident", 14, 2, 15, 1),
    Sketcher.Constraint("Coincident", 15, 2, 12, 1),
    Sketcher.Constraint("Coincident", 16, 2, 17, 1),
    Sketcher.Constraint("Coincident", 17, 2, 18, 1),
    Sketcher.Constraint("Coincident", 18, 2, 19, 1),
    Sketcher.Constraint("Coincident", 19, 2, 16, 1),
    Sketcher.Constraint("Coincident", 20, 2, 21, 1),
    Sketcher.Constraint("Coincident", 21, 2, 22, 1),
    Sketcher.Constraint("Coincident", 22, 2, 23, 1),
    Sketcher.Constraint("Coincident", 23, 2, 20, 1),
    Sketcher.Constraint("Coincident", 24, 2, 25, 1),
    Sketcher.Constraint("Coincident", 25, 2, 26, 1),
    Sketcher.Constraint("Coincident", 26, 2, 27, 1),
    Sketcher.Constraint("Coincident", 27, 2, 24, 1),
    Sketcher.Constraint("Vertical", 1),
    Sketcher.Constraint("Horizontal", 2),
    Sketcher.Constraint("Horizontal", 4),
    Sketcher.Constraint("Vertical", 5),
    Sketcher.Constraint("Horizontal", 7),
    Sketcher.Constraint("Vertical", 8),
    Sketcher.Constraint("Vertical", 10),
    Sketcher.Constraint("Horizontal", 11),
    Sketcher.Constraint("Vertical", 12),
    Sketcher.Constraint("Horizontal", 13),
    Sketcher.Constraint("Vertical", 14),
    Sketcher.Constraint("Horizontal", 15),
    Sketcher.Constraint("Vertical", 16),
    Sketcher.Constraint("Horizontal", 17),
    Sketcher.Constraint("Vertical", 18),
    Sketcher.Constraint("Horizontal", 19),
    Sketcher.Constraint("Vertical", 20),
    Sketcher.Constraint("Horizontal", 21),
    Sketcher.Constraint("Vertical", 22),
    Sketcher.Constraint("Horizontal", 23),
    Sketcher.Constraint("Vertical", 24),
    Sketcher.Constraint("Horizontal", 25),
    Sketcher.Constraint("Vertical", 26),
    Sketcher.Constraint("Horizontal", 27),
    Sketcher.Constraint("Symmetric", 2, 2, 3, 2, -2),
    Sketcher.Constraint("Symmetric", 0, 2, 5, 2, -2),
    Sketcher.Constraint("Symmetric", 8, 2, 9, 2, -2),
    Sketcher.Constraint("Symmetric", 6, 2, 11, 2, -2),
    Sketcher.Constraint("Symmetric", 17, 2, 20, 2, -2),
    Sketcher.Constraint("Symmetric", 19, 2, 22, 2, -2),
    Sketcher.Constraint("Symmetric", 13, 2, 24, 2, -2),
    Sketcher.Constraint("Symmetric", 15, 2, 26, 2, -2),
    Sketcher.Constraint("Parallel", 3, 6),
    Sketcher.Constraint("Vertical", 2, 2, 6, 2),
    Sketcher.Constraint("Vertical", 1, 2, 7, 2),
    Sketcher.Constraint("Vertical", 15, 2, 16, 2),
    Sketcher.Constraint("Vertical", 14, 2, 17, 2),
    Sketcher.Constraint("Equal", 11, 12),
    Sketcher.Constraint("Equal", 14, 16),
    Sketcher.Constraint("DistanceX", 2, 2, 2, 1, 6.0),
    Sketcher.Constraint("DistanceX", 13, 2, 13, 1, 3.0),
    Sketcher.Constraint("DistanceY", 1, 2, 1, 1, 10.0),
    Sketcher.Constraint("DistanceX", -1, 1, 0, 2, 87.0),
    Sketcher.Constraint("DistanceX", -1, 1, 12, 2, 100.0),
    Sketcher.Constraint("DistanceY", 16, 2, 12, 2, 30.0),
    Sketcher.Constraint("DistanceY", -1, 1, 12, 2, 13.5),
    Sketcher.Constraint("DistanceY", 6, 2, 2, 2, 41.5),
    Sketcher.Constraint("DistanceY", -1, 1, 0, 2, 32.25),
])
pad3 = doc.addObject("PartDesign::Pad", "Pad002")
body.addObject(pad3)
pad3.Profile = sketch7
pad3.Length = 2

sketch8 = doc.addObject("Sketcher::SketchObject", "Sketch007")
body.addObject(sketch8)
sketch8.AttachmentSupport = (doc.XY_Plane, [""])
sketch8.MapMode = "FlatFace"
sketch8.addGeometry([
    Part.LineSegment(App.Vector(93, 27.9, 0), App.Vector(97, 27.9, 0)),
    Part.LineSegment(App.Vector(97, 27.9, 0), App.Vector(97, 24.6, 0)),
    Part.LineSegment(App.Vector(97, 24.6, 0), App.Vector(93, 24.6, 0)),
    Part.LineSegment(App.Vector(93, 24.6, 0), App.Vector(93, 23.2, 0)),
    Part.LineSegment(App.Vector(93, 23.2, 0), App.Vector(90, 23.2, 0)),
    Part.LineSegment(App.Vector(90, 23.2, 0), App.Vector(90, 24.6, 0)),
    Part.LineSegment(App.Vector(90, 24.6, 0), App.Vector(88, 24.6, 0)),
    Part.LineSegment(App.Vector(88, 24.6, 0), App.Vector(88, 27.9, 0)),
    Part.LineSegment(App.Vector(88, 27.9, 0), App.Vector(90, 27.9, 0)),
    Part.LineSegment(App.Vector(90, 27.9, 0), App.Vector(90, 29.2, 0)),
    Part.LineSegment(App.Vector(90, 29.2, 0), App.Vector(93, 29.2, 0)),
    Part.LineSegment(App.Vector(93, 29.2, 0), App.Vector(93, 27.9, 0)),
    Part.LineSegment(App.Vector(97, -24.9, 0), App.Vector(93, -24.9, 0)),
    Part.LineSegment(App.Vector(93, -24.9, 0), App.Vector(93, -26.2, 0)),
    Part.LineSegment(App.Vector(93, -26.2, 0), App.Vector(90, -26.2, 0)),
    Part.LineSegment(App.Vector(90, -26.2, 0), App.Vector(90, -24.9, 0)),
    Part.LineSegment(App.Vector(90, -24.9, 0), App.Vector(88, -24.9, 0)),
    Part.LineSegment(App.Vector(88, -24.9, 0), App.Vector(88, -21.6, 0)),
    Part.LineSegment(App.Vector(88, -21.6, 0), App.Vector(90, -21.6, 0)),
    Part.LineSegment(App.Vector(90, -21.6, 0), App.Vector(90, -20.2, 0)),
    Part.LineSegment(App.Vector(90, -20.2, 0), App.Vector(93, -20.2, 0)),
    Part.LineSegment(App.Vector(93, -20.2, 0), App.Vector(93, -21.6, 0)),
    Part.LineSegment(App.Vector(93, -21.6, 0), App.Vector(97, -21.6, 0)),
    Part.LineSegment(App.Vector(97, -21.6, 0), App.Vector(97, -24.9, 0)),
    Part.LineSegment(App.Vector(-97, -24.9, 0), App.Vector(-97, -21.6, 0)),
    Part.LineSegment(App.Vector(-97, -21.6, 0), App.Vector(-93, -21.6, 0)),
    Part.LineSegment(App.Vector(-93, -21.6, 0), App.Vector(-93, -20.2, 0)),
    Part.LineSegment(App.Vector(-93, -20.2, 0), App.Vector(-90, -20.2, 0)),
    Part.LineSegment(App.Vector(-90, -20.2, 0), App.Vector(-90, -21.6, 0)),
    Part.LineSegment(App.Vector(-90, -21.6, 0), App.Vector(-88, -21.6, 0)),
    Part.LineSegment(App.Vector(-88, -21.6, 0), App.Vector(-88, -24.9, 0)),
    Part.LineSegment(App.Vector(-88, -24.9, 0), App.Vector(-90, -24.9, 0)),
    Part.LineSegment(App.Vector(-90, -24.9, 0), App.Vector(-90, -26.2, 0)),
    Part.LineSegment(App.Vector(-90, -26.2, 0), App.Vector(-93, -26.2, 0)),
    Part.LineSegment(App.Vector(-93, -26.2, 0), App.Vector(-93, -24.9, 0)),
    Part.LineSegment(App.Vector(-93, -24.9, 0), App.Vector(-97, -24.9, 0)),
    Part.LineSegment(App.Vector(-97, 27.9, 0), App.Vector(-93, 27.9, 0)),
    Part.LineSegment(App.Vector(-93, 27.9, 0), App.Vector(-93, 29.2, 0)),
    Part.LineSegment(App.Vector(-93, 29.2, 0), App.Vector(-90, 29.2, 0)),
    Part.LineSegment(App.Vector(-90, 29.2, 0), App.Vector(-90, 27.9, 0)),
    Part.LineSegment(App.Vector(-90, 27.9, 0), App.Vector(-88, 27.9, 0)),
    Part.LineSegment(App.Vector(-88, 27.9, 0), App.Vector(-88, 24.6, 0)),
    Part.LineSegment(App.Vector(-88, 24.6, 0), App.Vector(-90, 24.6, 0)),
    Part.LineSegment(App.Vector(-90, 24.6, 0), App.Vector(-90, 23.2, 0)),
    Part.LineSegment(App.Vector(-90, 23.2, 0), App.Vector(-93, 23.2, 0)),
    Part.LineSegment(App.Vector(-93, 23.2, 0), App.Vector(-93, 24.6, 0)),
    Part.LineSegment(App.Vector(-93, 24.6, 0), App.Vector(-97, 24.6, 0)),
    Part.LineSegment(App.Vector(-97, 24.6, 0), App.Vector(-97, 27.9, 0)),
], False)
sketch8.addConstraint([
    Sketcher.Constraint("Coincident", 0, 2, 1, 1),
    Sketcher.Constraint("Coincident", 1, 2, 2, 1),
    Sketcher.Constraint("Coincident", 2, 2, 3, 1),
    Sketcher.Constraint("Coincident", 3, 2, 4, 1),
    Sketcher.Constraint("Coincident", 4, 2, 5, 1),
    Sketcher.Constraint("Coincident", 5, 2, 6, 1),
    Sketcher.Constraint("Coincident", 6, 2, 7, 1),
    Sketcher.Constraint("Coincident", 7, 2, 8, 1),
    Sketcher.Constraint("Coincident", 8, 2, 9, 1),
    Sketcher.Constraint("Coincident", 9, 2, 10, 1),
    Sketcher.Constraint("Coincident", 10, 2, 11, 1),
    Sketcher.Constraint("Coincident", 11, 2, 0, 1),
    Sketcher.Constraint("Coincident", 12, 2, 13, 1),
    Sketcher.Constraint("Coincident", 13, 2, 14, 1),
    Sketcher.Constraint("Coincident", 14, 2, 15, 1),
    Sketcher.Constraint("Coincident", 15, 2, 16, 1),
    Sketcher.Constraint("Coincident", 16, 2, 17, 1),
    Sketcher.Constraint("Coincident", 17, 2, 18, 1),
    Sketcher.Constraint("Coincident", 18, 2, 19, 1),
    Sketcher.Constraint("Coincident", 19, 2, 20, 1),
    Sketcher.Constraint("Coincident", 20, 2, 21, 1),
    Sketcher.Constraint("Coincident", 21, 2, 22, 1),
    Sketcher.Constraint("Coincident", 22, 2, 23, 1),
    Sketcher.Constraint("Coincident", 23, 2, 12, 1),
    Sketcher.Constraint("Coincident", 24, 2, 25, 1),
    Sketcher.Constraint("Coincident", 25, 2, 26, 1),
    Sketcher.Constraint("Coincident", 26, 2, 27, 1),
    Sketcher.Constraint("Coincident", 27, 2, 28, 1),
    Sketcher.Constraint("Coincident", 28, 2, 29, 1),
    Sketcher.Constraint("Coincident", 29, 2, 30, 1),
    Sketcher.Constraint("Coincident", 30, 2, 31, 1),
    Sketcher.Constraint("Coincident", 31, 2, 32, 1),
    Sketcher.Constraint("Coincident", 32, 2, 33, 1),
    Sketcher.Constraint("Coincident", 33, 2, 34, 1),
    Sketcher.Constraint("Coincident", 34, 2, 35, 1),
    Sketcher.Constraint("Coincident", 35, 2, 24, 1),
    Sketcher.Constraint("Coincident", 36, 2, 37, 1),
    Sketcher.Constraint("Coincident", 37, 2, 38, 1),
    Sketcher.Constraint("Coincident", 38, 2, 39, 1),
    Sketcher.Constraint("Coincident", 39, 2, 40, 1),
    Sketcher.Constraint("Coincident", 40, 2, 41, 1),
    Sketcher.Constraint("Coincident", 41, 2, 42, 1),
    Sketcher.Constraint("Coincident", 42, 2, 43, 1),
    Sketcher.Constraint("Coincident", 43, 2, 44, 1),
    Sketcher.Constraint("Coincident", 44, 2, 45, 1),
    Sketcher.Constraint("Coincident", 45, 2, 46, 1),
    Sketcher.Constraint("Coincident", 46, 2, 47, 1),
    Sketcher.Constraint("Coincident", 47, 2, 36, 1),
    Sketcher.Constraint("Horizontal", 0),
    Sketcher.Constraint("Vertical", 1),
    Sketcher.Constraint("Horizontal", 2),
    Sketcher.Constraint("Vertical", 3),
    Sketcher.Constraint("Horizontal", 4),
    Sketcher.Constraint("Vertical", 5),
    Sketcher.Constraint("Horizontal", 6),
    Sketcher.Constraint("Vertical", 7),
    Sketcher.Constraint("Horizontal", 8),
    Sketcher.Constraint("Vertical", 9),
    Sketcher.Constraint("Horizontal", 10),
    Sketcher.Constraint("Vertical", 11),
    Sketcher.Constraint("Horizontal", 12),
    Sketcher.Constraint("Vertical", 13),
    Sketcher.Constraint("Horizontal", 14),
    Sketcher.Constraint("Vertical", 15),
    Sketcher.Constraint("Horizontal", 16),
    Sketcher.Constraint("Vertical", 17),
    Sketcher.Constraint("Horizontal", 18),
    Sketcher.Constraint("Vertical", 19),
    Sketcher.Constraint("Horizontal", 20),
    Sketcher.Constraint("Vertical", 21),
    Sketcher.Constraint("Horizontal", 22),
    Sketcher.Constraint("Vertical", 23),
    Sketcher.Constraint("Vertical", 24),
    Sketcher.Constraint("Horizontal", 25),
    Sketcher.Constraint("Vertical", 26),
    Sketcher.Constraint("Horizontal", 27),
    Sketcher.Constraint("Vertical", 28),
    Sketcher.Constraint("Horizontal", 29),
    Sketcher.Constraint("Vertical", 30),
    Sketcher.Constraint("Horizontal", 31),
    Sketcher.Constraint("Vertical", 32),
    Sketcher.Constraint("Horizontal", 33),
    Sketcher.Constraint("Vertical", 34),
    Sketcher.Constraint("Horizontal", 35),
    Sketcher.Constraint("Horizontal", 36),
    Sketcher.Constraint("Vertical", 37),
    Sketcher.Constraint("Horizontal", 38),
    Sketcher.Constraint("Vertical", 39),
    Sketcher.Constraint("Horizontal", 40),
    Sketcher.Constraint("Vertical", 41),
    Sketcher.Constraint("Horizontal", 42),
    Sketcher.Constraint("Vertical", 43),
    Sketcher.Constraint("Horizontal", 44),
    Sketcher.Constraint("Vertical", 45),
    Sketcher.Constraint("Horizontal", 46),
    Sketcher.Constraint("Vertical", 47),
    Sketcher.Constraint("Symmetric", 22, 2, 24, 2, -2),
    Sketcher.Constraint("Symmetric", 20, 2, 26, 2, -2),
    Sketcher.Constraint("Symmetric", 18, 2, 28, 2, -2),
    Sketcher.Constraint("Symmetric", 16, 2, 30, 2, -2),
    Sketcher.Constraint("Symmetric", 14, 2, 32, 2, -2),
    Sketcher.Constraint("Symmetric", 12, 2, 34, 2, -2),
    Sketcher.Constraint("Symmetric", 11, 2, 36, 2, -2),
    Sketcher.Constraint("Symmetric", 9, 2, 38, 2, -2),
    Sketcher.Constraint("Symmetric", 7, 2, 40, 2, -2),
    Sketcher.Constraint("Symmetric", 5, 2, 42, 2, -2),
    Sketcher.Constraint("Symmetric", 3, 2, 44, 2, -2),
    Sketcher.Constraint("Symmetric", 1, 2, 46, 2, -2),
    Sketcher.Constraint("Horizontal", 2, 2, 5, 2),
    Sketcher.Constraint("Horizontal", 0, 2, 7, 2),
    Sketcher.Constraint("Horizontal", 12, 2, 15, 2),
    Sketcher.Constraint("Horizontal", 18, 2, 21, 2),
    Sketcher.Constraint("Vertical", 5, 2, 8, 2),
    Sketcher.Constraint("Vertical", 3, 2, 10, 2),
    Sketcher.Constraint("Vertical", 11, 2, 12, 2),
    Sketcher.Constraint("Vertical", 9, 2, 14, 2),
    Sketcher.Constraint("Vertical", 7, 2, 16, 2),
    Sketcher.Constraint("Vertical", 15, 2, 18, 2),
    Sketcher.Constraint("Vertical", 13, 2, 20, 2),
    Sketcher.Constraint("Vertical", 1, 2, 22, 2),
    Sketcher.Constraint("Equal", 5, 9),
    Sketcher.Constraint("Equal", 11, 13),
    Sketcher.Constraint("Equal", 7, 17),
    Sketcher.Constraint("Equal", 15, 19),
    Sketcher.Constraint("DistanceX", 0, 1, 0, 2, 4.0),
    Sketcher.Constraint("DistanceX", 4, 2, 4, 1, 3.0),
    Sketcher.Constraint("DistanceX", 6, 2, 6, 1, 2.0),
    Sketcher.Constraint("DistanceY", 1, 2, 1, 1, 3.2),
    Sketcher.Constraint("DistanceY", 3, 2, 3, 1, 1.4),
    Sketcher.Constraint("DistanceX", -1, 1, 0, 2, 97.0),
    Sketcher.Constraint("DistanceY", 12, 2, 3, 2, 48.1),
    Sketcher.Constraint("DistanceY", -1, 1, 0, 2, 27.85),
])
pocket5 = doc.addObject("PartDesign::Pocket", "Pocket004")
body.addObject(pocket5)
pocket5.Profile = sketch8
pocket5.Type = "ThroughAll"
pocket5.Reversed = True
doc.recompute()

fillet3 = doc.addObject("PartDesign::Fillet", "Fillet002")
body.addObject(fillet3)
fillet3.Base = (pocket5, edges_at(pocket5, [
    (87, 32.25, 1),
    (87, -29.25, 1),
    (-87, 32.25, 1),
    (-87, -29.25, 1),
    (81, 22.25, 1),
    (-81, 22.25, 1),
    (81, -19.25, 1),
    (-81, -19.25, 1),
]))
fillet3.Radius = 5

doc.recompute()
